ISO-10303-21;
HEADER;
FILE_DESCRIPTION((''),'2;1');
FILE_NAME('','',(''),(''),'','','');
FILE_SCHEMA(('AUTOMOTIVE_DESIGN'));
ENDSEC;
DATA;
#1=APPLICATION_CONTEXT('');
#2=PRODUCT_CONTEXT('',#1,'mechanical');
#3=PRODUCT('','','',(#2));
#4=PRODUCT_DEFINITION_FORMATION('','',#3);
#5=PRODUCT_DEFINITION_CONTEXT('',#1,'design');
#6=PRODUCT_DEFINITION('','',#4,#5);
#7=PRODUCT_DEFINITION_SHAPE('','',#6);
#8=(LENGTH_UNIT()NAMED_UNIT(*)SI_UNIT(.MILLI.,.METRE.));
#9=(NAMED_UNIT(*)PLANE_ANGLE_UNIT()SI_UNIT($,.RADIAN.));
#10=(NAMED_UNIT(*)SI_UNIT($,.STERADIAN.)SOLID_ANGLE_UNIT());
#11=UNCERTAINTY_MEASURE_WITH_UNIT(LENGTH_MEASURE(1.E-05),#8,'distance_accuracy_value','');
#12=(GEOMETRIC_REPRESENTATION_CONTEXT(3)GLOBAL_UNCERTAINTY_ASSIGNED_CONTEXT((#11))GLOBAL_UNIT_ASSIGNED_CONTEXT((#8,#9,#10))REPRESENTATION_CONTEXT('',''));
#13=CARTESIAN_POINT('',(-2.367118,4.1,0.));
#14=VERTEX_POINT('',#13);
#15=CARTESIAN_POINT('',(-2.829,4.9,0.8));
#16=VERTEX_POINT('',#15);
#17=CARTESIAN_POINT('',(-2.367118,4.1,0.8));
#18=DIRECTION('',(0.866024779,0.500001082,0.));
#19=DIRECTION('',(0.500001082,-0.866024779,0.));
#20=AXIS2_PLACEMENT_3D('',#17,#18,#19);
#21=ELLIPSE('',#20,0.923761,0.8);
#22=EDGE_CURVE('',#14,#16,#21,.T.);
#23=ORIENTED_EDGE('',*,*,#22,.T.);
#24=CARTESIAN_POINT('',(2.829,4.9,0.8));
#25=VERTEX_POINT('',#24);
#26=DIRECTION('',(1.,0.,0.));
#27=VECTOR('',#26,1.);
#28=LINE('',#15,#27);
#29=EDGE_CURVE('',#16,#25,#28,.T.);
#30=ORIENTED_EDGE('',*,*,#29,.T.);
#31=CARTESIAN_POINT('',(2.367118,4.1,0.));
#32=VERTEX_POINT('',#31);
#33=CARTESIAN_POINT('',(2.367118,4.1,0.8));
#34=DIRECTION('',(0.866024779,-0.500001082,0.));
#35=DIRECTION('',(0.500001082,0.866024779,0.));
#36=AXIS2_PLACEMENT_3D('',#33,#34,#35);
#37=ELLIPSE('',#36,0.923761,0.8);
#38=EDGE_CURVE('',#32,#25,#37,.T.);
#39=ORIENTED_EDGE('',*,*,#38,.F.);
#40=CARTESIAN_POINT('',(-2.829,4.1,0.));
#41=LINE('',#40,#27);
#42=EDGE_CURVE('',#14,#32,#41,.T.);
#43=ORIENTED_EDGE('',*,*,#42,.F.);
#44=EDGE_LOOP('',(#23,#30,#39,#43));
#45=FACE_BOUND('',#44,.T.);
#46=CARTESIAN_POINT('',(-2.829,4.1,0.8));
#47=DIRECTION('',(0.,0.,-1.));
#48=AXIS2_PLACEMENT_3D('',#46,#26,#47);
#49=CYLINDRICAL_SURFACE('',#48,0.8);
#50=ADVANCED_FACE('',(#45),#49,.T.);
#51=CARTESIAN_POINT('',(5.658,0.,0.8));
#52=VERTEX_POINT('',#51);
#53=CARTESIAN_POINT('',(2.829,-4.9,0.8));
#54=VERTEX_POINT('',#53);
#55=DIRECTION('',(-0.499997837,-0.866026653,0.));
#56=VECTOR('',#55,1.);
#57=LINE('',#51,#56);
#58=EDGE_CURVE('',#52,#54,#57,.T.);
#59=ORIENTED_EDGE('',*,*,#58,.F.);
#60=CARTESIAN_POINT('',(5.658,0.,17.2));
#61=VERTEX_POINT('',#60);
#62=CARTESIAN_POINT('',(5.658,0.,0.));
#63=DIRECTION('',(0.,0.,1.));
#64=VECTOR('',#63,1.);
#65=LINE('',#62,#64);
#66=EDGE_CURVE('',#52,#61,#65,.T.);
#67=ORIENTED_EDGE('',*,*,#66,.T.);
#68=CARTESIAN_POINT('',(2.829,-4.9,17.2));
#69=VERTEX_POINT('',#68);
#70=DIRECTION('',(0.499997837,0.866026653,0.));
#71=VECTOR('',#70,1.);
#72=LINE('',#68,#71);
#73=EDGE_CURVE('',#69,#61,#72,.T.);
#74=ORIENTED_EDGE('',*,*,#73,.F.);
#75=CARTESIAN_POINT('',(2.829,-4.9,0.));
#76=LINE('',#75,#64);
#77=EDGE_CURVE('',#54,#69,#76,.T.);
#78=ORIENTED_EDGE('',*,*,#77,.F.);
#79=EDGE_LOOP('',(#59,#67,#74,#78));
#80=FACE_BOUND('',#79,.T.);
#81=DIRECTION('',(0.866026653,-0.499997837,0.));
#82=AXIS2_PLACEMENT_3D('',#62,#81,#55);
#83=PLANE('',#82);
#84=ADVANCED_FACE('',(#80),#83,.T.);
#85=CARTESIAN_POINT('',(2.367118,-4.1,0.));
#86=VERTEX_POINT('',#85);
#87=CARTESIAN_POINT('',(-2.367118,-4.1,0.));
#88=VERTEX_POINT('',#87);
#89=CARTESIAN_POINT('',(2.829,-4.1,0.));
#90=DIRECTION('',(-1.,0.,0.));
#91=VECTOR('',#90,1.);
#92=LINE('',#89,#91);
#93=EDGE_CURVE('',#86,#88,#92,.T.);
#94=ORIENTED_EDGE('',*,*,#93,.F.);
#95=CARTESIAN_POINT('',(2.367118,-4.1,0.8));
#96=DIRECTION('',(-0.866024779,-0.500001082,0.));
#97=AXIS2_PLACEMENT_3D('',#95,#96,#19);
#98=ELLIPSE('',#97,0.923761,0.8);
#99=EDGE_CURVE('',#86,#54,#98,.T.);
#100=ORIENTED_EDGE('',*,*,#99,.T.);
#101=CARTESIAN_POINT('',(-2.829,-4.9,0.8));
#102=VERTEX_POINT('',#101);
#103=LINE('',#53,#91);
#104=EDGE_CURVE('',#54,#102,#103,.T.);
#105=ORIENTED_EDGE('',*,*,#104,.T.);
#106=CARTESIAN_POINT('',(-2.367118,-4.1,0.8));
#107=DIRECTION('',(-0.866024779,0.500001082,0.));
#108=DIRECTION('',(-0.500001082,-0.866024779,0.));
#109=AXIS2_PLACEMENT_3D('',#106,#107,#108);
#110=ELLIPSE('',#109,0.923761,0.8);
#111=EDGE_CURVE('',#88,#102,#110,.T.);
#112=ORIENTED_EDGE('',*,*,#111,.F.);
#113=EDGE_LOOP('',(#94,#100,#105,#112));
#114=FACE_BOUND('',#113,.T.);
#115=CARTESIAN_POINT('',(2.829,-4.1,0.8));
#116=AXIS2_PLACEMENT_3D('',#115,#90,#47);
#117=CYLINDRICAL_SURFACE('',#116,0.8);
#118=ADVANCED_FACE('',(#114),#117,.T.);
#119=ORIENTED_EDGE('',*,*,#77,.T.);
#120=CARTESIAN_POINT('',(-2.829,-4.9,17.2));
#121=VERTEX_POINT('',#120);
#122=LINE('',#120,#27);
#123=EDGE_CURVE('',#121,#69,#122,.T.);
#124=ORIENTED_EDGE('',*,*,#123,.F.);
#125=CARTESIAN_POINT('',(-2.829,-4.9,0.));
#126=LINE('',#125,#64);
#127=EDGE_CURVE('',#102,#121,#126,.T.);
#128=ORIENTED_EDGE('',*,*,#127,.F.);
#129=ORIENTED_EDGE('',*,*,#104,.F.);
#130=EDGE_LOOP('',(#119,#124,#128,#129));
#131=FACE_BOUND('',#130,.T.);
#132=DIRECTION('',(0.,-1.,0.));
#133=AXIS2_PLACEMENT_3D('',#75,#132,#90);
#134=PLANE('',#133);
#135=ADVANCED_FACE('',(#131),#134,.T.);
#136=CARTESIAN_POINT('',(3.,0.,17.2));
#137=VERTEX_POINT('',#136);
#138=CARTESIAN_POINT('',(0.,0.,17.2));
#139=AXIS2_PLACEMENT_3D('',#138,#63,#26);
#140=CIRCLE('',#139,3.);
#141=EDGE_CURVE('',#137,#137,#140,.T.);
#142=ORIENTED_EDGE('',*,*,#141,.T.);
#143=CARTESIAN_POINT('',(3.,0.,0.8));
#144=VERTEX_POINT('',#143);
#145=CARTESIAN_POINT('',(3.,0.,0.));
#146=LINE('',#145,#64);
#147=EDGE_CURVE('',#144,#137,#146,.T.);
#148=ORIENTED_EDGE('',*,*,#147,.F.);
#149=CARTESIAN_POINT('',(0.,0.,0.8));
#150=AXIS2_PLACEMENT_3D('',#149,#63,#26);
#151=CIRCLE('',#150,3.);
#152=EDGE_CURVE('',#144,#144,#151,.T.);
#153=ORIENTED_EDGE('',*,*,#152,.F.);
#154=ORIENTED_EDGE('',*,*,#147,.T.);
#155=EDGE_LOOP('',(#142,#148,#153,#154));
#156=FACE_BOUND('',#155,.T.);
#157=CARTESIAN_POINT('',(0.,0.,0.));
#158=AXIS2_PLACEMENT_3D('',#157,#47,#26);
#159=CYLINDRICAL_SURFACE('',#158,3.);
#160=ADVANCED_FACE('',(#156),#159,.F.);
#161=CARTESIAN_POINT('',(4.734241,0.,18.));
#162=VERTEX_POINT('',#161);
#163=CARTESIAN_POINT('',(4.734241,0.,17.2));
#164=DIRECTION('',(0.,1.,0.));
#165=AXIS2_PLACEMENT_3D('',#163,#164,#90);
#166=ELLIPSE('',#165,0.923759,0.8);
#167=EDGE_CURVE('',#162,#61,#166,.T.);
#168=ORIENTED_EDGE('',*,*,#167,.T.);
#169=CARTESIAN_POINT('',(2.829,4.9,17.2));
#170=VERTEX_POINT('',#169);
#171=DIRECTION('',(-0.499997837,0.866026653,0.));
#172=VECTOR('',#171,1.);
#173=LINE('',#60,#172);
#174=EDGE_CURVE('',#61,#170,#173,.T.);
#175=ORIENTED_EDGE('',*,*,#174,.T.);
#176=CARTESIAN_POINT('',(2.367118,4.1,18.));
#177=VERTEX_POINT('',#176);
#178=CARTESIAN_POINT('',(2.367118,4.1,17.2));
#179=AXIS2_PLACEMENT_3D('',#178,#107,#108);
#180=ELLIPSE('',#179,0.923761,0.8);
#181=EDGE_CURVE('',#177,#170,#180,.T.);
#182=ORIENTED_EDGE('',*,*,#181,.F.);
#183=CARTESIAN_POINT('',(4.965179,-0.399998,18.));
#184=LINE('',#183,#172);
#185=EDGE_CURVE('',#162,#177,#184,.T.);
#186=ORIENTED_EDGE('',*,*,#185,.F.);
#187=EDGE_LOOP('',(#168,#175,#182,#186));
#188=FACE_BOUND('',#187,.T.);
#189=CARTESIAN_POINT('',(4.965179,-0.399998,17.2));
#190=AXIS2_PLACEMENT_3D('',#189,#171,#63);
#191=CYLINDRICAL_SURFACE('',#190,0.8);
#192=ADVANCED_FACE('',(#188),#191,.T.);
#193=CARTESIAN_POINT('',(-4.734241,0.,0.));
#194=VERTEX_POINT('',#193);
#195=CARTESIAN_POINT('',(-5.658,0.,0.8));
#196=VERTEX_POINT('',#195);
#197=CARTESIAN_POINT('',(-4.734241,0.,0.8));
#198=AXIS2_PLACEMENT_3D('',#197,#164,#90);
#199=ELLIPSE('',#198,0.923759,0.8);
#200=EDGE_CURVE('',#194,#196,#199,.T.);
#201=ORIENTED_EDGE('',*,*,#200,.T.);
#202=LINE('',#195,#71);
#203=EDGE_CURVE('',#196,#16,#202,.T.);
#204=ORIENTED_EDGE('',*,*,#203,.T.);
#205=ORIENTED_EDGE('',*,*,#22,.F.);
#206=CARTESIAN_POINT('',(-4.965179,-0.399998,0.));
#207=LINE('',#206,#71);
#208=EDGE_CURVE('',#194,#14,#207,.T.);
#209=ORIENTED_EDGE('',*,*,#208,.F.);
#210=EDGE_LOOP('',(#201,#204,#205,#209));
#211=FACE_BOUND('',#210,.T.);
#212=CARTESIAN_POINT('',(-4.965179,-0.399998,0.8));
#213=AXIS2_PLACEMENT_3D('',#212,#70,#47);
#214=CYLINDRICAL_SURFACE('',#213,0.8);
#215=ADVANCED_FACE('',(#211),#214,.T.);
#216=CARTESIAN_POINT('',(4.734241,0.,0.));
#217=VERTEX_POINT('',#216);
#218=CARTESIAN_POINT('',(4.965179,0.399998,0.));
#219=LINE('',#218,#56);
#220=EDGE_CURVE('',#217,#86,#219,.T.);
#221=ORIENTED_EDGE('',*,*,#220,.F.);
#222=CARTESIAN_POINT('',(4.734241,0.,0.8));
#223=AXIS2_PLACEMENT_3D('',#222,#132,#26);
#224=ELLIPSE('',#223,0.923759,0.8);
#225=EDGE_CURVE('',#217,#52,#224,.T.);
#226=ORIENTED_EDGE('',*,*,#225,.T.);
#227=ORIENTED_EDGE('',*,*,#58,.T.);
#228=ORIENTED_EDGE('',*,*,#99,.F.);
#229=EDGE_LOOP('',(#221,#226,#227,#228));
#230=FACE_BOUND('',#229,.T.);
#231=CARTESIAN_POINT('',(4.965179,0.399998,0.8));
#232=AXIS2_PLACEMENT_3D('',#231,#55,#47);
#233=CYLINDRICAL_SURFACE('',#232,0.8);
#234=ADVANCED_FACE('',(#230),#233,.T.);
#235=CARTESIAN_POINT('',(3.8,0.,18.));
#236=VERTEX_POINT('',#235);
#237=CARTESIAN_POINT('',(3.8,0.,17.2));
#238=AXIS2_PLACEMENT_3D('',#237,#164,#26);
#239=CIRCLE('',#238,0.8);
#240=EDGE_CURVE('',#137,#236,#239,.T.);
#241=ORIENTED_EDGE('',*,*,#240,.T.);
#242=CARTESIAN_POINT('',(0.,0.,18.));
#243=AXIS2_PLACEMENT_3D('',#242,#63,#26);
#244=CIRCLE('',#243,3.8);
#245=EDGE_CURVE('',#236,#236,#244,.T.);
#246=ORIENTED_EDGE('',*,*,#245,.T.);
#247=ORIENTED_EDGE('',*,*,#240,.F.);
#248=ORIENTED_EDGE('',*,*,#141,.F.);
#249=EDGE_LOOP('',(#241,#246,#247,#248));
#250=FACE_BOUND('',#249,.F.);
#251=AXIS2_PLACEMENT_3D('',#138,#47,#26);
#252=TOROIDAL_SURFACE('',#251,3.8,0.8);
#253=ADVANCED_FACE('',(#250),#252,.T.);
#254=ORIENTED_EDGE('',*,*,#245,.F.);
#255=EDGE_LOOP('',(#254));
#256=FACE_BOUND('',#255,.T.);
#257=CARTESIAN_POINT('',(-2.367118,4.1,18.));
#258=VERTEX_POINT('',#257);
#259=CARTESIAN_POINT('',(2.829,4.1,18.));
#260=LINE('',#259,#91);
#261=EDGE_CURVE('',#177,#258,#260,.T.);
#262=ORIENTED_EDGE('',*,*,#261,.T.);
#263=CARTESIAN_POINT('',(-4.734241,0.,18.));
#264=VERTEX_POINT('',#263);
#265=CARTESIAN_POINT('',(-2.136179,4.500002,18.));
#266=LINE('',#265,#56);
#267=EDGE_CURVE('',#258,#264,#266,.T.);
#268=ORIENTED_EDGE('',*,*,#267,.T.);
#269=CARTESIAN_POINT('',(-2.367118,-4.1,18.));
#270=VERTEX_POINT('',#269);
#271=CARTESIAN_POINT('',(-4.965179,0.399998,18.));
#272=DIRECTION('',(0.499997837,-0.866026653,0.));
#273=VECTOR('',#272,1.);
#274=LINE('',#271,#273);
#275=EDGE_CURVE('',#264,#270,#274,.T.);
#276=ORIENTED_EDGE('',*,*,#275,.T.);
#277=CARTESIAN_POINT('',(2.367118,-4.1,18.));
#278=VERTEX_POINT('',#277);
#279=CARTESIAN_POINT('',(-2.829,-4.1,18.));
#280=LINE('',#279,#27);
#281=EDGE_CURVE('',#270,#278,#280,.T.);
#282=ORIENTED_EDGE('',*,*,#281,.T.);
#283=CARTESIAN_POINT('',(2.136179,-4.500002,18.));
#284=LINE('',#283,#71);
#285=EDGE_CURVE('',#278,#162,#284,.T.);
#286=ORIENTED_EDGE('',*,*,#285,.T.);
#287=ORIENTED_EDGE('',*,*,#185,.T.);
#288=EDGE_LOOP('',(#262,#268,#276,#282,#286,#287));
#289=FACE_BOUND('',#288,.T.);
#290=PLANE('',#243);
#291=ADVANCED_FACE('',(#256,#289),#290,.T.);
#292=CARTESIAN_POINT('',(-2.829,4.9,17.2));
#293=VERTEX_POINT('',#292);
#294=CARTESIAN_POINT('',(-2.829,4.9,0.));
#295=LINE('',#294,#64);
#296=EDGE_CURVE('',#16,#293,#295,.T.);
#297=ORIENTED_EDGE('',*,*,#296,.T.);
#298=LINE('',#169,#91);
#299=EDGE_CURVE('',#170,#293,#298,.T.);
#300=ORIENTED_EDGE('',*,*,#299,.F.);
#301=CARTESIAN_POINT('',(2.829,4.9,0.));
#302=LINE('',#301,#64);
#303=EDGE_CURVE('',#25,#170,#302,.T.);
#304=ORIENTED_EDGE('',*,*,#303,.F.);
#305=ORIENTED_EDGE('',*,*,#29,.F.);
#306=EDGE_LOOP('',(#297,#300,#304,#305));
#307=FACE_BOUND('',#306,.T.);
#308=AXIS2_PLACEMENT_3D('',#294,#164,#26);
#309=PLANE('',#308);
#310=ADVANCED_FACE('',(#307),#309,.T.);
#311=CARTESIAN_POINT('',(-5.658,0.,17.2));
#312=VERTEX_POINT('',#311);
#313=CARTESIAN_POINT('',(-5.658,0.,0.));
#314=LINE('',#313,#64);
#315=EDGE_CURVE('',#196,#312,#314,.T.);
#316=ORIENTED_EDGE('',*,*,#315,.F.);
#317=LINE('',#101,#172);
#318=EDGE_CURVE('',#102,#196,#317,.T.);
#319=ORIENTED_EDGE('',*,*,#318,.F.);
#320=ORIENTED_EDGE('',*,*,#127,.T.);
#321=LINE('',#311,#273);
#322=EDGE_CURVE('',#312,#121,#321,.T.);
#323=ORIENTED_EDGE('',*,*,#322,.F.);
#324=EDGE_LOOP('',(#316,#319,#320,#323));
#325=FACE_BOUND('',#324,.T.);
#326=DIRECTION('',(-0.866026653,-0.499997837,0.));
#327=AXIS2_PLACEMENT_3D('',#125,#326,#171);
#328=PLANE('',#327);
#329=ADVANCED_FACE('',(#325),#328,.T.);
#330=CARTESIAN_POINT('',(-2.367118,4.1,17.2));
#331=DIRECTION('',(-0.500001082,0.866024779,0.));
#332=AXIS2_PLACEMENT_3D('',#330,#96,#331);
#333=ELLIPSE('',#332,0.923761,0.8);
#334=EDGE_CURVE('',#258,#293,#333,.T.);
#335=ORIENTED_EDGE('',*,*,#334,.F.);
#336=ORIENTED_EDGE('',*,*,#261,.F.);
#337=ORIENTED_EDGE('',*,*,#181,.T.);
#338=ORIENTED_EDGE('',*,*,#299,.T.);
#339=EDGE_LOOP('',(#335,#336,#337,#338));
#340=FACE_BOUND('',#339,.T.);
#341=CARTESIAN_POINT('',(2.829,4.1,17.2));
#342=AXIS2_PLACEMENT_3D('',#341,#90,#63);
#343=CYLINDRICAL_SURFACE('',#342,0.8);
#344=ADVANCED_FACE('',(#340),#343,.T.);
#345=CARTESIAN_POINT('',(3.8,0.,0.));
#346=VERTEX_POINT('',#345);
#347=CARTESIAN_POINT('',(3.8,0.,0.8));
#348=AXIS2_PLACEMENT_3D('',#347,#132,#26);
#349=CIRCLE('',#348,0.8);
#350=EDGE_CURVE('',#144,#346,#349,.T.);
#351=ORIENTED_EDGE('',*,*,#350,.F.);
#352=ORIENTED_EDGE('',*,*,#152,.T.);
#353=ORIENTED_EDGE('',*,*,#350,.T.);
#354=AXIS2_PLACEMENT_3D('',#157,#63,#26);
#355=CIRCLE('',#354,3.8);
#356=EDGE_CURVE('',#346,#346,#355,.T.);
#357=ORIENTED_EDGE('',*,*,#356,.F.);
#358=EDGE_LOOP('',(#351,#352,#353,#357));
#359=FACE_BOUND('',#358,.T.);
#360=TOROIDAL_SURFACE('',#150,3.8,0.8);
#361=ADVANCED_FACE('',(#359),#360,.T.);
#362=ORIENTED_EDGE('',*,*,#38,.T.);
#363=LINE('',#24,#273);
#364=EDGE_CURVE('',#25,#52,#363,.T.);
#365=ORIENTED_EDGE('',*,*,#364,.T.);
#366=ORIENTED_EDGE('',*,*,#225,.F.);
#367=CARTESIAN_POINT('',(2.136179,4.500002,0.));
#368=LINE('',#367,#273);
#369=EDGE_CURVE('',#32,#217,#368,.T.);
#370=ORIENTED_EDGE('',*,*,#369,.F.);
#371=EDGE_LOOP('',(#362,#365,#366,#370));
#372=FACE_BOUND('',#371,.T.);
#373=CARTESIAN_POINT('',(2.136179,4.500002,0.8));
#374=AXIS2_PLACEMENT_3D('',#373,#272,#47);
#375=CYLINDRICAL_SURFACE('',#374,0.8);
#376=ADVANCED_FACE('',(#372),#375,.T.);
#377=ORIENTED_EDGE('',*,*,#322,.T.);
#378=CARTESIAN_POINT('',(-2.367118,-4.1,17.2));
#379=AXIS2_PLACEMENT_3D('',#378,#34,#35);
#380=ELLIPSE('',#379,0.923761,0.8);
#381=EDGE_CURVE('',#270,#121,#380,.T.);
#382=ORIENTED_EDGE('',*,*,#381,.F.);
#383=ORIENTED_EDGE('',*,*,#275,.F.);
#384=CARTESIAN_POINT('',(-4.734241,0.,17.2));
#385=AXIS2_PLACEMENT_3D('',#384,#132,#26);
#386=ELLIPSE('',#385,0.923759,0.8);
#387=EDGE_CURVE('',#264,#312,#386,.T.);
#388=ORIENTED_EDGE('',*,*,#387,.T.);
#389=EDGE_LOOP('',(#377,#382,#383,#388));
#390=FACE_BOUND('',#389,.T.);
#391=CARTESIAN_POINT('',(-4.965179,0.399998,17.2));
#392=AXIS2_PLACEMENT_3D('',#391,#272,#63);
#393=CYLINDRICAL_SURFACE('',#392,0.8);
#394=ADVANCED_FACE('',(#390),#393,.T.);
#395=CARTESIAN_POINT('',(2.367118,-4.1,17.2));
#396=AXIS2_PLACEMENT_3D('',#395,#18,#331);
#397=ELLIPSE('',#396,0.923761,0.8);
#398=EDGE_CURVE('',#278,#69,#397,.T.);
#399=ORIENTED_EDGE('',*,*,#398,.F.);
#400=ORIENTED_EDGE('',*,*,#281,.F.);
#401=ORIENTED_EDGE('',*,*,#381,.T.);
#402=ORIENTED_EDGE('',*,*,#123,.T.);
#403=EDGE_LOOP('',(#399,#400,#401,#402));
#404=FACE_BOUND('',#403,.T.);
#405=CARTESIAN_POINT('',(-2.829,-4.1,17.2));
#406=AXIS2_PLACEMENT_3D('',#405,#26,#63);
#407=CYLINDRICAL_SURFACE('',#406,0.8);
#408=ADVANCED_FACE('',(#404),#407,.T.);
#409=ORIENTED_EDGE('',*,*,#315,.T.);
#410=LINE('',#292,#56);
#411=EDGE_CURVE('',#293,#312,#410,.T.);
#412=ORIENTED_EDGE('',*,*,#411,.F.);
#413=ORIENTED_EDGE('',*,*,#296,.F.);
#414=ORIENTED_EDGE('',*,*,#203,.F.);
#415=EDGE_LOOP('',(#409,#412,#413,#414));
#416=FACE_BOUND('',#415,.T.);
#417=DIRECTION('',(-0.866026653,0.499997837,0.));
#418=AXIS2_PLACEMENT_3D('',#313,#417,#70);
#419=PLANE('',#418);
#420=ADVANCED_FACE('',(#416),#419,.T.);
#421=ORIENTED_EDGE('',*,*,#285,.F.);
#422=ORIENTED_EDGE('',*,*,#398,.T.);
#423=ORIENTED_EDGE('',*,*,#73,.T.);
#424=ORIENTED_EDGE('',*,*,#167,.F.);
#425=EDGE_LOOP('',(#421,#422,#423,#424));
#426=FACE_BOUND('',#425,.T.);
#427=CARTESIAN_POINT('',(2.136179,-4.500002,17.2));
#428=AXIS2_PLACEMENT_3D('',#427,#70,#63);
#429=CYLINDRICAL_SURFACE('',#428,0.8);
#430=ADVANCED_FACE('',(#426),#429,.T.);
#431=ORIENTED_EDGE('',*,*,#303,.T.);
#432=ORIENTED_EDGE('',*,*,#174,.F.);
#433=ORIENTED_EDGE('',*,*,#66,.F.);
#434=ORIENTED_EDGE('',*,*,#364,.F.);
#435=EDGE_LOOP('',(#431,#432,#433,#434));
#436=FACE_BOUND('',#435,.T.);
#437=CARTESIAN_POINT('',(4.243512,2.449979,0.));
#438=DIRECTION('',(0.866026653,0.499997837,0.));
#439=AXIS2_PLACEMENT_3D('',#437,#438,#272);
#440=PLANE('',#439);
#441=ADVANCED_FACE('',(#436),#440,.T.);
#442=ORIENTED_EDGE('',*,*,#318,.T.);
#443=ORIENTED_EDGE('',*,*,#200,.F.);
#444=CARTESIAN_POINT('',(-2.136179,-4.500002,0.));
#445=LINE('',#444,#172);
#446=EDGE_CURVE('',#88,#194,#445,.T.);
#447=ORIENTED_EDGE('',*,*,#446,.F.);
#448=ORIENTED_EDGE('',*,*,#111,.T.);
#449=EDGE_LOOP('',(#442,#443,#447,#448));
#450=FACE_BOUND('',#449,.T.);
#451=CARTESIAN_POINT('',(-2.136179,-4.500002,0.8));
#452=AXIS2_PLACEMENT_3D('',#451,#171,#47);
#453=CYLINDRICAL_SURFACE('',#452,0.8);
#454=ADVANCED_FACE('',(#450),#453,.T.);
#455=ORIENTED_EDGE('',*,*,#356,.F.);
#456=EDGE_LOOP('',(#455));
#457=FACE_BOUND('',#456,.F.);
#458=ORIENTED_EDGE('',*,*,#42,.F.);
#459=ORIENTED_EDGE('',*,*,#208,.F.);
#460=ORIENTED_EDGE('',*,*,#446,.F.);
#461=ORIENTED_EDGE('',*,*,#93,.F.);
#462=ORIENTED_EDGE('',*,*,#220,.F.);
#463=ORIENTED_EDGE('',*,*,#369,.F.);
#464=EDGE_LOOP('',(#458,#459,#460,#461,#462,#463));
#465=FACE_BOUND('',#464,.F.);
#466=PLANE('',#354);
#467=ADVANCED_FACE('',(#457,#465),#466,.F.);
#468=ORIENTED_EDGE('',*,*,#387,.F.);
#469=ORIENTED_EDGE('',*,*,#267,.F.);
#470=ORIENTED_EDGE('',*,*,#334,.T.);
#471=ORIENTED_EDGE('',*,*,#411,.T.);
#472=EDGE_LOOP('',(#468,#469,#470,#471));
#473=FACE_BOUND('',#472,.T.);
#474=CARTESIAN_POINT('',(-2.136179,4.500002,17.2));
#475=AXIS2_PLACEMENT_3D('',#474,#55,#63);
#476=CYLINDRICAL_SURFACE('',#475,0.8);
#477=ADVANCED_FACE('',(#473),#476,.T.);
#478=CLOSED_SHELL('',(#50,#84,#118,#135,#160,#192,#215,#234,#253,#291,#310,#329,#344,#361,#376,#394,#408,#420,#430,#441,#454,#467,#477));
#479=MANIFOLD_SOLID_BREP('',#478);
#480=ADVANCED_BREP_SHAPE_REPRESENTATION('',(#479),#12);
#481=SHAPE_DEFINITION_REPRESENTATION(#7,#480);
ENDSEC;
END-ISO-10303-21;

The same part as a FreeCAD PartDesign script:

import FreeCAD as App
import Part
import Sketcher
Q = App.Units.Quantity


def edges_at(feature, points):
    """Names of the edges that pass closest to the given points."""
    edges = feature.Shape.Edges
    near = lambda p: min(range(len(edges)), key=lambda i: edges[i].distToShape(Part.Vertex(*p))[0])
    return sorted({f"Edge{near(p) + 1}" for p in points})


def add_polygon(sketch, points):
    """Adds a closed chain of lines whose ends are joined by coincident constraints."""
    first, n = sketch.GeometryCount, len(points)
    for a, b in zip(points, points[1:] + points[:1]):
        sketch.addGeometry(Part.LineSegment(App.Vector(*a, 0), App.Vector(*b, 0)), False)
    for i in range(n):
        sketch.addConstraint(Sketcher.Constraint("Coincident", first + i, 2, first + (i + 1) % n, 1))

doc = App.newDocument("Part")
params = doc.addObject("Spreadsheet::Sheet", "Params")
for row, (alias, value) in enumerate([
    ("sketch1_diameter", "6 mm"),
    ("pad1_length", "18 mm"),
    ("fillet_radius", "0.8 mm"),
], start=1):
    params.set(f"A{row}", alias)
    params.set(f"B{row}", "=" + value)
    params.setAlias(f"B{row}", alias)

body = doc.addObject("PartDesign::Body", "Body")

sketch1 = body.newObject("Sketcher::SketchObject", "Sketch")
sketch1.AttachmentSupport = (doc.getObject("XY_Plane"), [""])
sketch1.MapMode = "FlatFace"
add_polygon(sketch1, [(5.7, 0), (2.8, 4.9), (-2.8, 4.9), (-5.7, 0), (-2.8, -4.9), (2.8, -4.9)])
sketch1.addGeometry(Part.Circle(App.Vector(0, 0, 0), App.Vector(0, 0, 1), 3), False)
sketch1.addConstraint(Sketcher.Constraint("Horizontal", 1))
sketch1.addConstraint(Sketcher.Constraint("Horizontal", 4))
sketch1.addConstraint(Sketcher.Constraint("Coincident", 6, 3, -1, 1))
sketch1.addConstraint(Sketcher.Constraint("Symmetric", 0, 2, 3, 2, -1, 1))
sketch1.addConstraint(Sketcher.Constraint("Symmetric", 2, 2, 5, 2, -1, 1))
sketch1.addConstraint(Sketcher.Constraint("PointOnObject", 2, 2, -1))
sketch1.addConstraint(Sketcher.Constraint("Parallel", 2, 5))
sketch1.addConstraint(Sketcher.Constraint("Vertical", 1, 2, 3, 2))
sketch1.addConstraint(Sketcher.Constraint("Diameter", 6, Q("6 mm")))
sketch1.addConstraint(Sketcher.Constraint("DistanceY", 3, 2, 1, 2, Q("9.8 mm")))
sketch1.addConstraint(Sketcher.Constraint("Angle", 0, Q("119.9999 deg")))
sketch1.addConstraint(Sketcher.Constraint("DistanceX", 1, 2, 1, 1, Q("5.658 mm")))
sketch1.setExpression("Constraints[14]", "Params.sketch1_diameter")
pad1 = body.newObject("PartDesign::Pad", "Pad")
pad1.Profile = sketch1
pad1.setExpression("Length", "Params.pad1_length")
doc.recompute()

fillet = body.newObject("PartDesign::Fillet", "Fillet")
fillet.Base = (pad1, edges_at(pad1, [
    (1.415, 4.9, 18),
    (-1.415, 4.9, 18),
    (4.244, 2.45, 18),
    (4.244, -2.45, 18),
    (0, -4.9, 18),
    (-4.244, -2.45, 18),
    (-4.244, 2.45, 18),
    (1.415, 4.9, 0),
    (-1.415, 4.9, 0),
    (4.244, 2.45, 0),
    (4.244, -2.45, 0),
    (0, -4.9, 0),
    (-4.244, -2.45, 0),
    (-4.244, 2.45, 0),
    (-3, 0, 18),
    (-3, 0, 0),
]))
fillet.setExpression("Radius", "Params.fillet_radius")

doc.recompute()
